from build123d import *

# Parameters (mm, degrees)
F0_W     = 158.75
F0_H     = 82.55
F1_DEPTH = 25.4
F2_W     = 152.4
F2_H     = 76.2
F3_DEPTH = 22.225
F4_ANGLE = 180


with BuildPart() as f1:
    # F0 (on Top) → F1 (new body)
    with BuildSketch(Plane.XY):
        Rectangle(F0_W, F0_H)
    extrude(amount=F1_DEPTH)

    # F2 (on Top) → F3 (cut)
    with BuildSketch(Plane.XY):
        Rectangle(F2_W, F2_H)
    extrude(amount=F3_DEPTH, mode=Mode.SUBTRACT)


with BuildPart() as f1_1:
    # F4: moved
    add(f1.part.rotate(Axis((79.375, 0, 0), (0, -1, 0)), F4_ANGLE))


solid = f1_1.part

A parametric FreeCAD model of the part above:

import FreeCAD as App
import Part
import Sketcher

V = App.Vector
Q = App.Units.Quantity


def add_polygon(sketch, points):
    """Adds a closed chain of lines whose ends are joined by coincident constraints."""
    first, n = sketch.GeometryCount, len(points)
    for a, b in zip(points, points[1:] + points[:1]):
        sketch.addGeometry(Part.LineSegment(App.Vector(*a, 0), App.Vector(*b, 0)), False)
    for i in range(n):
        sketch.addConstraint(Sketcher.Constraint("Coincident", first + i, 2, first + (i + 1) % n, 1))

doc = App.newDocument("Part")
params = doc.addObject("Spreadsheet::Sheet", "Params")
for row, (alias, value) in enumerate([
    ("sketch1_width", "6.25 in"),
    ("sketch1_height", "3.25 in"),
    ("pad1_length", "1 in"),
    ("sketch2_width", "6 in"),
    ("sketch2_height", "3 in"),
    ("pocket1_length", "0.875 in"),
], start=1):
    params.set(f"A{row}", alias)
    params.set(f"B{row}", "=" + value)
    params.setAlias(f"B{row}", alias)

body = doc.addObject("PartDesign::Body", "Body")

# Sketch on XY plane
sketch1 = body.newObject("Sketcher::SketchObject", "Sketch")
sketch1.AttachmentSupport = (doc.getObject("XY_Plane"), [""])
sketch1.MapMode = "FlatFace"
add_polygon(sketch1, [(-79, 41), (-79, -41), (79, -41), (79, 41)])  # lines 0-3
sketch1.addConstraint(Sketcher.Constraint("Vertical", 0))
sketch1.addConstraint(Sketcher.Constraint("Horizontal", 1))
sketch1.addConstraint(Sketcher.Constraint("Vertical", 2))
sketch1.addConstraint(Sketcher.Constraint("Horizontal", 3))
sketch1.addConstraint(Sketcher.Constraint("Symmetric", 0, 2, 2, 2, -1, 1))
sketch1.addConstraint(Sketcher.Constraint("DistanceX", 1, 1, 1, 2, Q("6.25 in")))
sketch1.addConstraint(Sketcher.Constraint("DistanceY", 0, 2, 0, 1, Q("3.25 in")))
sketch1.setExpression("Constraints[9]", "Params.sketch1_width")
sketch1.setExpression("Constraints[10]", "Params.sketch1_height")
pad1 = body.newObject("PartDesign::Pad", "Pad")
pad1.Profile = sketch1
pad1.setExpression("Length", "Params.pad1_length")

# Sketch on XY plane
sketch2 = body.newObject("Sketcher::SketchObject", "Sketch001")
sketch2.AttachmentSupport = (doc.getObject("XY_Plane"), [""])
sketch2.MapMode = "FlatFace"
add_polygon(sketch2, [(-76, 38), (-76, -38), (76, -38), (76, 38)])  # lines 0-3
sketch2.addConstraint(Sketcher.Constraint("Vertical", 0))
sketch2.addConstraint(Sketcher.Constraint("Horizontal", 1))
sketch2.addConstraint(Sketcher.Constraint("Vertical", 2))
sketch2.addConstraint(Sketcher.Constraint("Horizontal", 3))
sketch2.addConstraint(Sketcher.Constraint("Symmetric", 0, 2, 2, 2, -1, 1))
sketch2.addConstraint(Sketcher.Constraint("DistanceX", 1, 1, 1, 2, Q("6 in")))
sketch2.addConstraint(Sketcher.Constraint("DistanceY", 0, 2, 0, 1, Q("3 in")))
sketch2.setExpression("Constraints[9]", "Params.sketch2_width")
sketch2.setExpression("Constraints[10]", "Params.sketch2_height")
pocket1 = body.newObject("PartDesign::Pocket", "Pocket")
pocket1.Profile = sketch2
pocket1.setExpression("Length", "Params.pocket1_length")
pocket1.Reversed = True
body2 = doc.addObject("PartDesign::Body", "Body001")
doc.recompute()

body.Placement = App.Placement(V(158.75, 0, 0), App.Rotation(V(0, -1, 0), 180))
boolean = body2.newObject("PartDesign::Boolean", "Boolean")
boolean.Type = "Fuse"
boolean.addObjects([body])

doc.recompute()
